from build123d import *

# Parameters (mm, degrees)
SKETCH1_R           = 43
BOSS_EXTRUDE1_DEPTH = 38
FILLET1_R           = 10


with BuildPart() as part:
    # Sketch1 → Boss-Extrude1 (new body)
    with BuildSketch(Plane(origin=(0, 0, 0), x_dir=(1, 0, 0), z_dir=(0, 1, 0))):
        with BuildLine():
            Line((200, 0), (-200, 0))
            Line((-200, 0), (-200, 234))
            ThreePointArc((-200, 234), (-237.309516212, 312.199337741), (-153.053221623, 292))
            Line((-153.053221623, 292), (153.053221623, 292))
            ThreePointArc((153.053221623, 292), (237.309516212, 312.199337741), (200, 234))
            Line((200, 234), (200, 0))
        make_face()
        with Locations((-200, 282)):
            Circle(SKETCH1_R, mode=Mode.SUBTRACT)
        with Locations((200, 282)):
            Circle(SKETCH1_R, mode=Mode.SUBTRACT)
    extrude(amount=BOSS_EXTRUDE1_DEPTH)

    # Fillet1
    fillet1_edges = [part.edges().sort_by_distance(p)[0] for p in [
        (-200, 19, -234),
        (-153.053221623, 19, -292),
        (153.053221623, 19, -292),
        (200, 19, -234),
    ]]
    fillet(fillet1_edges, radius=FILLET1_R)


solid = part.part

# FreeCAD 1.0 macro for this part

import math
import FreeCAD as App
import Part
import Sketcher
from FreeCAD import Vector
Q = App.Units.Quantity


def edges_at(feature, points):
    """Names of the edges that pass closest to the given points."""
    edges = feature.Shape.Edges
    near = lambda p: min(range(len(edges)), key=lambda i: edges[i].distToShape(Part.Vertex(*p))[0])
    return sorted({f"Edge{near(p) + 1}" for p in points})

doc = App.newDocument("Part")
params = doc.addObject("Spreadsheet::Sheet", "Params")
for row, (alias, value) in enumerate([
    ("sketch1_diameter", "86 mm"),
    ("sketch1_radius", "48 mm"),
    ("sketch1_width", "400 mm"),
    ("sketch1_height", "234 mm"),
    ("pad1_length", "38 mm"),
    ("fillet_radius", "10 mm"),
], start=1):
    params.set(f"A{row}", alias)
    params.set(f"B{row}", "=" + value)
    params.setAlias(f"B{row}", alias)

body = doc.addObject("PartDesign::Body", "Body")

sketch1 = doc.addObject("Sketcher::SketchObject", "Sketch")
body.addObject(sketch1)
sketch1.AttachmentSupport = (doc.XZ_Plane, [""])
sketch1.MapMode = "FlatFace"
sketch1.addGeometry([
    Part.LineSegment(Vector(-200, 0, 0), Vector(200, 0, 0)),
    Part.LineSegment(Vector(200, 0, 0), Vector(200, -234, 0)),
    Part.ArcOfCircle(Part.Circle(Vector(200, -282, 0), Vector(0, 0, 1), 48), math.radians(-168), math.radians(90)),
    Part.LineSegment(Vector(153, -292, 0), Vector(-153, -292, 0)),
    Part.ArcOfCircle(Part.Circle(Vector(-200, -282, 0), Vector(0, 0, 1), 48), math.radians(90), math.radians(348)),
    Part.LineSegment(Vector(-200, -234, 0), Vector(-200, 0, 0)),
    Part.Circle(Vector(200, -282, 0), Vector(0, 0, 1), 43),
    Part.Circle(Vector(-200, -282, 0), Vector(0, 0, 1), 43),
], False)
sketch1.addConstraint([
    Sketcher.Constraint("Coincident", 0, 2, 1, 1),
    Sketcher.Constraint("Coincident", 1, 2, 2, 2),
    Sketcher.Constraint("Coincident", 2, 1, 3, 1),
    Sketcher.Constraint("Coincident", 3, 2, 4, 2),
    Sketcher.Constraint("Coincident", 4, 1, 5, 1),
    Sketcher.Constraint("Coincident", 5, 2, 0, 1),
    Sketcher.Constraint("Horizontal", 0),
    Sketcher.Constraint("Vertical", 1),
    Sketcher.Constraint("Horizontal", 3),
    Sketcher.Constraint("Vertical", 5),
    Sketcher.Constraint("Coincident", 6, 3, 2, 3),
    Sketcher.Constraint("Coincident", 7, 3, 4, 3),
    Sketcher.Constraint("Equal", 2, 4),
    Sketcher.Constraint("Equal", 6, 7),
    Sketcher.Constraint("Symmetric", 0, 2, 5, 2, -1, 1),
    Sketcher.Constraint("Symmetric", 2, 3, 4, 3, -2),
    Sketcher.Constraint("Vertical", 6, 3, 0, 2),
    Sketcher.Constraint("Diameter", 6, Q("86 mm")),
    Sketcher.Constraint("Radius", 2, Q("48 mm")),
    Sketcher.Constraint("DistanceX", 0, 1, 0, 2, Q("400 mm")),
    Sketcher.Constraint("DistanceY", 1, 2, 1, 1, Q("234 mm")),
    Sketcher.Constraint("DistanceY", 2, 1, -1, 1, Q("292 mm")),
])
sketch1.setExpression("Constraints[17]", "Params.sketch1_diameter")
sketch1.setExpression("Constraints[18]", "Params.sketch1_radius")
sketch1.setExpression("Constraints[19]", "Params.sketch1_width")
sketch1.setExpression("Constraints[20]", "Params.sketch1_height")
pad1 = doc.addObject("PartDesign::Pad", "Pad")
body.addObject(pad1)
pad1.Profile = sketch1
pad1.setExpression("Length", "Params.pad1_length")
pad1.Reversed = True
doc.recompute()

fillet = doc.addObject("PartDesign::Fillet", "Fillet")
body.addObject(fillet)
fillet.Base = (pad1, edges_at(pad1, [
    (-200, 19, -234),
    (-153.053, 19, -292),
    (153.053, 19, -292),
    (200, 19, -234),
]))
fillet.setExpression("Radius", "Params.fillet_radius")

doc.recompute()
